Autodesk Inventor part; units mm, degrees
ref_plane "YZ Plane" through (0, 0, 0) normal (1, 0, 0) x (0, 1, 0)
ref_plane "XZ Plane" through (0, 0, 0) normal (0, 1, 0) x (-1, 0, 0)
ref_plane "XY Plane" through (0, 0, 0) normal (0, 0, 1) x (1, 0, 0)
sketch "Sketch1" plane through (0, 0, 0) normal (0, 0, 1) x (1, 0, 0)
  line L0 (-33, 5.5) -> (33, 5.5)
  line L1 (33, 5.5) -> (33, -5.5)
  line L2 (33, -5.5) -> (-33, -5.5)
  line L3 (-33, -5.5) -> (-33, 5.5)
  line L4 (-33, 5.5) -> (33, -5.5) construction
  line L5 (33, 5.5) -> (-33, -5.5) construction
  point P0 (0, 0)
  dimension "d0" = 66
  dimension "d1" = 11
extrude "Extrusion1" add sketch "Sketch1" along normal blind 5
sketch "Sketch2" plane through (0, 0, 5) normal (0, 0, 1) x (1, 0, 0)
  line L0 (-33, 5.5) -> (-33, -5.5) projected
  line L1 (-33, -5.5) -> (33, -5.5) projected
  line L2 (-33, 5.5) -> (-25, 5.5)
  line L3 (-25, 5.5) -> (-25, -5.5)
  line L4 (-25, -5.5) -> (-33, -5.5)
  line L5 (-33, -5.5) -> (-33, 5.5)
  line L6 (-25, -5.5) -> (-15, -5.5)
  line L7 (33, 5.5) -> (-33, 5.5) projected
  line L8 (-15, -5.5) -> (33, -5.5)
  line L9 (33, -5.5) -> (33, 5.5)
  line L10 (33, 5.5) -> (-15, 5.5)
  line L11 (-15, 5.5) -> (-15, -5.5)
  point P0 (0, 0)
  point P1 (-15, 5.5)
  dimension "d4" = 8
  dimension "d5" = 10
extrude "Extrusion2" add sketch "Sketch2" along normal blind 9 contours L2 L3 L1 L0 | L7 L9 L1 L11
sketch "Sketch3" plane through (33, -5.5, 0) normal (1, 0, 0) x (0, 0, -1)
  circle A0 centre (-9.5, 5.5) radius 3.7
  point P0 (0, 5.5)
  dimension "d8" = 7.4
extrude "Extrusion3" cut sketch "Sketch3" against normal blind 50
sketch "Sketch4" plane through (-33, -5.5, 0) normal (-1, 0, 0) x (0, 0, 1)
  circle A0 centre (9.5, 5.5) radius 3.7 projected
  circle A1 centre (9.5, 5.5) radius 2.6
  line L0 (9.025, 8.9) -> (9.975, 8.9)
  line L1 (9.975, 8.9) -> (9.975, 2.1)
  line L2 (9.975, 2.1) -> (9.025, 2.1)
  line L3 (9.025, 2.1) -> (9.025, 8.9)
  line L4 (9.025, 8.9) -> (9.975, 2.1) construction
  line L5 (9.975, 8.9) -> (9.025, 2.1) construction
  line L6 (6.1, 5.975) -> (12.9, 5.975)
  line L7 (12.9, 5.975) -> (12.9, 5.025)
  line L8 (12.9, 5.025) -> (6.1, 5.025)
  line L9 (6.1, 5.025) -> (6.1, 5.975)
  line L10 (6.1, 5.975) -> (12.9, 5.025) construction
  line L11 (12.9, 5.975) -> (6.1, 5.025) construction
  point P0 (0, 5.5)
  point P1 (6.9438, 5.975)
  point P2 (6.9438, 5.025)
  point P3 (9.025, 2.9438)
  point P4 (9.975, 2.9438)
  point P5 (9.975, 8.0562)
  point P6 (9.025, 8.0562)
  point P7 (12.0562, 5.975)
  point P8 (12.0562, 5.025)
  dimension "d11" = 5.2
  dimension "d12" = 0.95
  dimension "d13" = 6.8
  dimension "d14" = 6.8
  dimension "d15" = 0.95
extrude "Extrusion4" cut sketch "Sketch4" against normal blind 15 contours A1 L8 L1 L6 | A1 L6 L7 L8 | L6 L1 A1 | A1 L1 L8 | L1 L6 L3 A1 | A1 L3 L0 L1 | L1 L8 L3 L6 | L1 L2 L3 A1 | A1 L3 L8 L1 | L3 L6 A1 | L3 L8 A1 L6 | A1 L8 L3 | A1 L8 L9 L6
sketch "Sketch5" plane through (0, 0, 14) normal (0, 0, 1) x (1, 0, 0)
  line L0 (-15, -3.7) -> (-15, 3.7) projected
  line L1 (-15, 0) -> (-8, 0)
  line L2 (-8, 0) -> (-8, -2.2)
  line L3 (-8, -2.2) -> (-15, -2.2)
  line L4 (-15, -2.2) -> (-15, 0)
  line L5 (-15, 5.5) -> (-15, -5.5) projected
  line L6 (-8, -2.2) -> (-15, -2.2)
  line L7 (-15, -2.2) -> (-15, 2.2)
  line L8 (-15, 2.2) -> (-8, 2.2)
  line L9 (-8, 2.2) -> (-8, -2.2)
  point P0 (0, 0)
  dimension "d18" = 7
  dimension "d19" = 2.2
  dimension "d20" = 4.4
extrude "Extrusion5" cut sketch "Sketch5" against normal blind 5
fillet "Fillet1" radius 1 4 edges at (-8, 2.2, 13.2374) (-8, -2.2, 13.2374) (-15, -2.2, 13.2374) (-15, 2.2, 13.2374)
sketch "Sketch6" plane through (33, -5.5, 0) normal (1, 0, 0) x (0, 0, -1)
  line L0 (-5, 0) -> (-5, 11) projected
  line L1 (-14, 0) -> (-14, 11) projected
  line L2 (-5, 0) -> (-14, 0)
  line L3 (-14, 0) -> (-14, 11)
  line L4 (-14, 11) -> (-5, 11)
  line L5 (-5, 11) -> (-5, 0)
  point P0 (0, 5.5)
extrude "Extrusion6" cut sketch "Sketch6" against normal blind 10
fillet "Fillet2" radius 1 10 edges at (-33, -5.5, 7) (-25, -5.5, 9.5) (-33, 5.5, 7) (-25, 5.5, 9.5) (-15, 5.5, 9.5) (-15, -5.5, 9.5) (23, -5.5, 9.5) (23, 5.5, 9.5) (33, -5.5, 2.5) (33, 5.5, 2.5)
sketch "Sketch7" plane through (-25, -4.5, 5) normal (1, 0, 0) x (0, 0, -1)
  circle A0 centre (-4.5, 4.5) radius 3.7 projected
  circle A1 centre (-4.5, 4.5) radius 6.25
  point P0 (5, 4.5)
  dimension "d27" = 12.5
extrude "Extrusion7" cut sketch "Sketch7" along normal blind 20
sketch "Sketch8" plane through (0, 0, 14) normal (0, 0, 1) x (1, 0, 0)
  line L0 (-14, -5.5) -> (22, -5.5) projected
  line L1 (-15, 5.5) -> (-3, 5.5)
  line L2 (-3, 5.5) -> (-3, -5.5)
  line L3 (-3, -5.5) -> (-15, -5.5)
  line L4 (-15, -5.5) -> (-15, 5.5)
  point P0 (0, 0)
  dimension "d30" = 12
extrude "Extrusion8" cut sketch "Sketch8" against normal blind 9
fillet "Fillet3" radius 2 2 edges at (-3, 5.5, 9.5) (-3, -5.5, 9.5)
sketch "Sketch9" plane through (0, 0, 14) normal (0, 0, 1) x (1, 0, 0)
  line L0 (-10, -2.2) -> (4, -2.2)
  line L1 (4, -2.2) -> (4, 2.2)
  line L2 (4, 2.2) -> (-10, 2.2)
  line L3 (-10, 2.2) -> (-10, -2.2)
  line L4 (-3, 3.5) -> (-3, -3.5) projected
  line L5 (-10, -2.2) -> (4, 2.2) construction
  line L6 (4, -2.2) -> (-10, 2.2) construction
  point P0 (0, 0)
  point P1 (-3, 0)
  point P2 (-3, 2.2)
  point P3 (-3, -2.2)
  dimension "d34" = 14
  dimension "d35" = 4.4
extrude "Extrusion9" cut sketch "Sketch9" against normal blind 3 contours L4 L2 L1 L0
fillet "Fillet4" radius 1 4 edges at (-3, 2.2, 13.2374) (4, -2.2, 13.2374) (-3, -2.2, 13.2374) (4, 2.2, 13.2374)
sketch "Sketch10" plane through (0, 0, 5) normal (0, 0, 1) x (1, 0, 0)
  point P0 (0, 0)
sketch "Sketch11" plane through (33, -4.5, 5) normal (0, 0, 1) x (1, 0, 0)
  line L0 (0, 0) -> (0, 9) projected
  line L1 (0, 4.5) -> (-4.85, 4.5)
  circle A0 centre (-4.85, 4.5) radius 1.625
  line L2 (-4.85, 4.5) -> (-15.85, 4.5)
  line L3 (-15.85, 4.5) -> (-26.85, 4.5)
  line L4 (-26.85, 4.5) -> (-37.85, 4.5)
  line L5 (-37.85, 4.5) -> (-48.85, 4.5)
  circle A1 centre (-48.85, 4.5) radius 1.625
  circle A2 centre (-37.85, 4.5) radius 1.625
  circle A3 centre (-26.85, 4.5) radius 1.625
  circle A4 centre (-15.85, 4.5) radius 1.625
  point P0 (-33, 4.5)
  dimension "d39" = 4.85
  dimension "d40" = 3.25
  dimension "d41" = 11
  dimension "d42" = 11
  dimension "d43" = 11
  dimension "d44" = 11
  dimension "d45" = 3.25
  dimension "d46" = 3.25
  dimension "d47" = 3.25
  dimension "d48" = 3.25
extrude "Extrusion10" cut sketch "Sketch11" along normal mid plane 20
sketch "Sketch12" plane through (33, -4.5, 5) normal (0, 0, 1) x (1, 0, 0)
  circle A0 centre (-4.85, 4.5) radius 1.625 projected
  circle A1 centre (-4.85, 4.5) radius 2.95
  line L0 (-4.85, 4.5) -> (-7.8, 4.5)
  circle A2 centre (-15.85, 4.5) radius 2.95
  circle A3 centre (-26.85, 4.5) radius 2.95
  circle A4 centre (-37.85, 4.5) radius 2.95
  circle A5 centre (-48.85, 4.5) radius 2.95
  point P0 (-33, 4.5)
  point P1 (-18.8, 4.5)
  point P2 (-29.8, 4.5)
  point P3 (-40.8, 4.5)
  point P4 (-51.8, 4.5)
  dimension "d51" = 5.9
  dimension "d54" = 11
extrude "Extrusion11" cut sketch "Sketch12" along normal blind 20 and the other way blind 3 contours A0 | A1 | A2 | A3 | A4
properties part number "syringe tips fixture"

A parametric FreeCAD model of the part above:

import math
import FreeCAD as App
import Part
import Sketcher

V = App.Vector


def edges_at(feature, points):
    """Names of the edges that pass closest to the given points."""
    edges = feature.Shape.Edges
    near = lambda p: min(range(len(edges)), key=lambda i: edges[i].distToShape(Part.Vertex(*p))[0])
    return sorted({f"Edge{near(p) + 1}" for p in points})


def add_polygon(sketch, points):
    """Adds a closed chain of lines whose ends are joined by coincident constraints."""
    first, n = sketch.GeometryCount, len(points)
    for a, b in zip(points, points[1:] + points[:1]):
        sketch.addGeometry(Part.LineSegment(App.Vector(*a, 0), App.Vector(*b, 0)), False)
    for i in range(n):
        sketch.addConstraint(Sketcher.Constraint("Coincident", first + i, 2, first + (i + 1) % n, 1))

doc = App.newDocument("Part")
body = doc.addObject("PartDesign::Body", "Body")

# Sketch on XY plane
sketch1 = body.newObject("Sketcher::SketchObject", "Sketch")
sketch1.AttachmentSupport = (doc.getObject("XY_Plane"), [""])
sketch1.MapMode = "FlatFace"
add_polygon(sketch1, [(33, 6), (-33, 6), (-33, -6), (33, -6)])  # lines 0-3
sketch1.addConstraint(Sketcher.Constraint("Horizontal", 0))
sketch1.addConstraint(Sketcher.Constraint("Vertical", 1))
sketch1.addConstraint(Sketcher.Constraint("Horizontal", 2))
sketch1.addConstraint(Sketcher.Constraint("Vertical", 3))
sketch1.addConstraint(Sketcher.Constraint("Symmetric", 0, 2, 2, 2, -1, 1))
sketch1.addConstraint(Sketcher.Constraint("DistanceX", 0, 2, 0, 1, 66.0))
sketch1.addConstraint(Sketcher.Constraint("DistanceY", 1, 2, 1, 1, 11.0))
pad1 = body.newObject("PartDesign::Pad", "Pad")
pad1.Profile = sketch1
pad1.Length = 5

# Sketch on XY plane
sketch2 = body.newObject("Sketcher::SketchObject", "Sketch001")
sketch2.AttachmentSupport = (doc.getObject("XY_Plane"), [""])
sketch2.MapMode = "FlatFace"
sketch2.AttachmentOffset = App.Placement(V(0, 0, 5), App.Rotation())
add_polygon(sketch2, [(-25, 6), (-33, 6), (-33, -6), (-25, -6)])  # lines 0-3
add_polygon(sketch2, [(33, 6), (-15, 6), (-15, -6), (33, -6)])  # lines 4-7
sketch2.addConstraint(Sketcher.Constraint("Horizontal", 0))
sketch2.addConstraint(Sketcher.Constraint("Vertical", 1))
sketch2.addConstraint(Sketcher.Constraint("Horizontal", 2))
sketch2.addConstraint(Sketcher.Constraint("Vertical", 3))
sketch2.addConstraint(Sketcher.Constraint("Horizontal", 4))
sketch2.addConstraint(Sketcher.Constraint("Vertical", 5))
sketch2.addConstraint(Sketcher.Constraint("Horizontal", 6))
sketch2.addConstraint(Sketcher.Constraint("Vertical", 7))
sketch2.addConstraint(Sketcher.Constraint("Symmetric", 0, 2, 6, 2, -1, 1))
sketch2.addConstraint(Sketcher.Constraint("Horizontal", 3, 2, 4, 2))
sketch2.addConstraint(Sketcher.Constraint("Horizontal", 2, 2, 5, 2))
sketch2.addConstraint(Sketcher.Constraint("DistanceX", 0, 2, 0, 1, 8.0))
sketch2.addConstraint(Sketcher.Constraint("DistanceX", 3, 2, 4, 2, 10.0))
sketch2.addConstraint(Sketcher.Constraint("DistanceX", 4, 2, 4, 1, 48.0))
sketch2.addConstraint(Sketcher.Constraint("DistanceY", 1, 2, 1, 1, 11.0))
pad2 = body.newObject("PartDesign::Pad", "Pad001")
pad2.Profile = sketch2
pad2.Length = 9

# Sketch on YZ plane
sketch3 = body.newObject("Sketcher::SketchObject", "Sketch002")
sketch3.AttachmentSupport = (doc.getObject("YZ_Plane"), [""])
sketch3.MapMode = "FlatFace"
sketch3.AttachmentOffset = App.Placement(V(0, 0, 33), App.Rotation())
sketch3.addGeometry(Part.Circle(V(0, 9.5, 0), V(0, 0, 1), 3.7), False)
sketch3.addConstraint(Sketcher.Constraint("PointOnObject", 0, 3, -2))
sketch3.addConstraint(Sketcher.Constraint("Diameter", 0, 7.4))
sketch3.addConstraint(Sketcher.Constraint("DistanceY", -1, 1, 0, 3, 9.5))
pocket1 = body.newObject("PartDesign::Pocket", "Pocket")
pocket1.Profile = sketch3
pocket1.Length = 50

# Sketch on YZ plane
sketch4 = body.newObject("Sketcher::SketchObject", "Sketch003")
sketch4.AttachmentSupport = (doc.getObject("YZ_Plane"), [""])
sketch4.MapMode = "FlatFace"
sketch4.AttachmentOffset = App.Placement(V(0, 0, -33), App.Rotation())
sketch4.addGeometry(Part.LineSegment(V(-0.5, 12.1, 0), V(-0.5, 12.9, 0)), False)
sketch4.addGeometry(Part.LineSegment(V(-0.5, 12.9, 0), V(0.5, 12.9, 0)), False)
sketch4.addGeometry(Part.LineSegment(V(0.5, 12.9, 0), V(0.5, 12.1, 0)), False)
sketch4.addGeometry(Part.ArcOfCircle(Part.Circle(V(0, 9.5, 0), V(0, 0, 1), 2.6), math.radians(11), math.radians(79)), False)
sketch4.addGeometry(Part.LineSegment(V(2.6, 10, 0), V(3.4, 10, 0)), False)
sketch4.addGeometry(Part.LineSegment(V(3.4, 10, 0), V(3.4, 9, 0)), False)
sketch4.addGeometry(Part.LineSegment(V(3.4, 9, 0), V(2.6, 9, 0)), False)
sketch4.addGeometry(Part.ArcOfCircle(Part.Circle(V(0, 9.5, 0), V(0, 0, 1), 2.6), math.radians(-79), math.radians(-11)), False)
sketch4.addGeometry(Part.LineSegment(V(0.5, 6.9, 0), V(0.5, 6.1, 0)), False)
sketch4.addGeometry(Part.LineSegment(V(0.5, 6.1, 0), V(-0.5, 6.1, 0)), False)
sketch4.addGeometry(Part.LineSegment(V(-0.5, 6.1, 0), V(-0.5, 6.9, 0)), False)
sketch4.addGeometry(Part.ArcOfCircle(Part.Circle(V(0, 9.5, 0), V(0, 0, 1), 2.6), math.radians(-169), math.radians(-101)), False)
sketch4.addGeometry(Part.LineSegment(V(-2.6, 9, 0), V(-3.4, 9, 0)), False)
sketch4.addGeometry(Part.LineSegment(V(-3.4, 9, 0), V(-3.4, 10, 0)), False)
sketch4.addGeometry(Part.LineSegment(V(-3.4, 10, 0), V(-2.6, 10, 0)), False)
sketch4.addGeometry(Part.ArcOfCircle(Part.Circle(V(0, 9.5, 0), V(0, 0, 1), 2.6), math.radians(101), math.radians(169)), False)
sketch4.addConstraint(Sketcher.Constraint("Coincident", 0, 2, 1, 1))
sketch4.addConstraint(Sketcher.Constraint("Coincident", 1, 2, 2, 1))
sketch4.addConstraint(Sketcher.Constraint("Coincident", 2, 2, 3, 2))
sketch4.addConstraint(Sketcher.Constraint("Coincident", 3, 1, 4, 1))
sketch4.addConstraint(Sketcher.Constraint("Coincident", 4, 2, 5, 1))
sketch4.addConstraint(Sketcher.Constraint("Coincident", 5, 2, 6, 1))
sketch4.addConstraint(Sketcher.Constraint("Coincident", 6, 2, 7, 2))
sketch4.addConstraint(Sketcher.Constraint("Coincident", 7, 1, 8, 1))
sketch4.addConstraint(Sketcher.Constraint("Coincident", 8, 2, 9, 1))
sketch4.addConstraint(Sketcher.Constraint("Coincident", 9, 2, 10, 1))
sketch4.addConstraint(Sketcher.Constraint("Coincident", 10, 2, 11, 2))
sketch4.addConstraint(Sketcher.Constraint("Coincident", 11, 1, 12, 1))
sketch4.addConstraint(Sketcher.Constraint("Coincident", 12, 2, 13, 1))
sketch4.addConstraint(Sketcher.Constraint("Coincident", 13, 2, 14, 1))
sketch4.addConstraint(Sketcher.Constraint("Coincident", 14, 2, 15, 2))
sketch4.addConstraint(Sketcher.Constraint("Coincident", 15, 1, 0, 1))
sketch4.addConstraint(Sketcher.Constraint("Vertical", 0))
sketch4.addConstraint(Sketcher.Constraint("Horizontal", 1))
sketch4.addConstraint(Sketcher.Constraint("Vertical", 2))
sketch4.addConstraint(Sketcher.Constraint("Horizontal", 4))
sketch4.addConstraint(Sketcher.Constraint("Vertical", 5))
sketch4.addConstraint(Sketcher.Constraint("Horizontal", 6))
sketch4.addConstraint(Sketcher.Constraint("Vertical", 8))
sketch4.addConstraint(Sketcher.Constraint("Horizontal", 9))
sketch4.addConstraint(Sketcher.Constraint("Vertical", 10))
sketch4.addConstraint(Sketcher.Constraint("Horizontal", 12))
sketch4.addConstraint(Sketcher.Constraint("Vertical", 13))
sketch4.addConstraint(Sketcher.Constraint("Horizontal", 14))
sketch4.addConstraint(Sketcher.Constraint("Coincident", 7, 3, 3, 3))
sketch4.addConstraint(Sketcher.Constraint("Coincident", 11, 3, 3, 3))
sketch4.addConstraint(Sketcher.Constraint("Coincident", 15, 3, 3, 3))
sketch4.addConstraint(Sketcher.Constraint("Equal", 3, 7))
sketch4.addConstraint(Sketcher.Constraint("Equal", 7, 11))
sketch4.addConstraint(Sketcher.Constraint("Equal", 11, 15))
sketch4.addConstraint(Sketcher.Constraint("Symmetric", 7, 1, 10, 2, -2))
sketch4.addConstraint(Sketcher.Constraint("Symmetric", 5, 2, 12, 2, -2))
sketch4.addConstraint(Sketcher.Constraint("Horizontal", 4, 2, 13, 2))
sketch4.addConstraint(Sketcher.Constraint("Horizontal", 2, 2, 15, 1))
sketch4.addConstraint(Sketcher.Constraint("Vertical", 3, 1, 6, 2))
sketch4.addConstraint(Sketcher.Constraint("Vertical", 2, 2, 7, 1))
sketch4.addConstraint(Sketcher.Constraint("Equal", 14, 0))
sketch4.addConstraint(Sketcher.Constraint("Equal", 9, 5))
sketch4.addConstraint(Sketcher.Constraint("Equal", 2, 8))
sketch4.addConstraint(Sketcher.Constraint("Radius", 3, 2.6))
sketch4.addConstraint(Sketcher.Constraint("DistanceX", 1, 1, 1, 2, 0.95))
sketch4.addConstraint(Sketcher.Constraint("DistanceY", -1, 1, 3, 3, 9.5))
sketch4.addConstraint(Sketcher.Constraint("DistanceY", -1, 1, 0, 2, 12.9))
pocket2 = body.newObject("PartDesign::Pocket", "Pocket001")
pocket2.Profile = sketch4
pocket2.Length = 15
pocket2.Reversed = True

# Sketch on XY plane
sketch5 = body.newObject("Sketcher::SketchObject", "Sketch004")
sketch5.AttachmentSupport = (doc.getObject("XY_Plane"), [""])
sketch5.MapMode = "FlatFace"
sketch5.AttachmentOffset = App.Placement(V(0, 0, 14), App.Rotation())
add_polygon(sketch5, [(-15, -2.2), (-8, -2.2), (-8, 2.2), (-15, 2.2)])  # lines 0-3
sketch5.addConstraint(Sketcher.Constraint("Horizontal", 0))
sketch5.addConstraint(Sketcher.Constraint("Vertical", 1))
sketch5.addConstraint(Sketcher.Constraint("Horizontal", 2))
sketch5.addConstraint(Sketcher.Constraint("Vertical", 3))
sketch5.addConstraint(Sketcher.Constraint("DistanceX", 0, 1, 0, 2, 7.0))
sketch5.addConstraint(Sketcher.Constraint("DistanceY", 1, 1, 1, 2, 4.4))
sketch5.addConstraint(Sketcher.Constraint("DistanceY", 0, 2, -1, 1, 2.2))
sketch5.addConstraint(Sketcher.Constraint("DistanceX", 0, 2, -1, 1, 8.0))
pocket3 = body.newObject("PartDesign::Pocket", "Pocket002")
pocket3.Profile = sketch5
pocket3.Length = 5
doc.recompute()

fillet = body.newObject("PartDesign::Fillet", "Fillet")
fillet.Base = (pocket3, edges_at(pocket3, [
    (-8, 2.2, 13.237),
    (-8, -2.2, 13.237),
    (-15, -2.2, 13.237),
    (-15, 2.2, 13.237),
]))
fillet.Radius = 1

# Sketch on YZ plane
sketch6 = body.newObject("Sketcher::SketchObject", "Sketch005")
sketch6.AttachmentSupport = (doc.getObject("YZ_Plane"), [""])
sketch6.MapMode = "FlatFace"
sketch6.AttachmentOffset = App.Placement(V(0, 0, 33), App.Rotation())
add_polygon(sketch6, [(-6, 14), (-6, 5), (6, 5), (6, 14)])  # lines 0-3
sketch6.addConstraint(Sketcher.Constraint("Vertical", 0))
sketch6.addConstraint(Sketcher.Constraint("Horizontal", 1))
sketch6.addConstraint(Sketcher.Constraint("Vertical", 2))
sketch6.addConstraint(Sketcher.Constraint("Horizontal", 3))
sketch6.addConstraint(Sketcher.Constraint("DistanceX", 1, 1, 1, 2, 11.0))
sketch6.addConstraint(Sketcher.Constraint("DistanceY", 0, 2, 0, 1, 9.0))
sketch6.addConstraint(Sketcher.Constraint("DistanceY", -1, 1, 0, 2, 5.0))
sketch6.addConstraint(Sketcher.Constraint("DistanceX", 0, 2, -1, 1, 5.5))
pocket4 = body.newObject("PartDesign::Pocket", "Pocket003")
pocket4.Profile = sketch6
pocket4.Length = 10
doc.recompute()

fillet2 = body.newObject("PartDesign::Fillet", "Fillet001")
fillet2.Base = (pocket4, edges_at(pocket4, [
    (-33, -5.5, 7),
    (-25, -5.5, 9.5),
    (-33, 5.5, 7),
    (-25, 5.5, 9.5),
    (-15, 5.5, 9.5),
    (-15, -5.5, 9.5),
    (23, -5.5, 9.5),
    (23, 5.5, 9.5),
    (33, -5.5, 2.5),
    (33, 5.5, 2.5),
]))
fillet2.Radius = 1

# Sketch on YZ plane
sketch7 = body.newObject("Sketcher::SketchObject", "Sketch006")
sketch7.AttachmentSupport = (doc.getObject("YZ_Plane"), [""])
sketch7.MapMode = "FlatFace"
sketch7.AttachmentOffset = App.Placement(V(0, 0, -25), App.Rotation())
sketch7.addGeometry(Part.Circle(V(0, 9.5, 0), V(0, 0, 1), 6.2), False)
sketch7.addGeometry(Part.Circle(V(0, 9.5, 0), V(0, 0, 1), 3.7), False)
sketch7.addConstraint(Sketcher.Constraint("Coincident", 1, 3, 0, 3))
sketch7.addConstraint(Sketcher.Constraint("PointOnObject", 0, 3, -2))
sketch7.addConstraint(Sketcher.Constraint("Diameter", 0, 12.5))
sketch7.addConstraint(Sketcher.Constraint("Diameter", 1, 7.4))
sketch7.addConstraint(Sketcher.Constraint("DistanceY", -1, 1, 0, 3, 9.5))
pocket5 = body.newObject("PartDesign::Pocket", "Pocket004")
pocket5.Profile = sketch7
pocket5.Length = 20
pocket5.Reversed = True

# Sketch on XY plane
sketch8 = body.newObject("Sketcher::SketchObject", "Sketch007")
sketch8.AttachmentSupport = (doc.getObject("XY_Plane"), [""])
sketch8.MapMode = "FlatFace"
sketch8.AttachmentOffset = App.Placement(V(0, 0, 14), App.Rotation())
add_polygon(sketch8, [(-15, -6), (-3, -6), (-3, 6), (-15, 6)])  # lines 0-3
sketch8.addConstraint(Sketcher.Constraint("Horizontal", 0))
sketch8.addConstraint(Sketcher.Constraint("Vertical", 1))
sketch8.addConstraint(Sketcher.Constraint("Horizontal", 2))
sketch8.addConstraint(Sketcher.Constraint("Vertical", 3))
sketch8.addConstraint(Sketcher.Constraint("DistanceX", 0, 1, 0, 2, 12.0))
sketch8.addConstraint(Sketcher.Constraint("DistanceY", 1, 1, 1, 2, 11.0))
sketch8.addConstraint(Sketcher.Constraint("DistanceX", 0, 2, -1, 1, 3.0))
sketch8.addConstraint(Sketcher.Constraint("DistanceY", 0, 2, -1, 1, 5.5))
pocket6 = body.newObject("PartDesign::Pocket", "Pocket005")
pocket6.Profile = sketch8
pocket6.Length = 9
doc.recompute()

fillet3 = body.newObject("PartDesign::Fillet", "Fillet002")
fillet3.Base = (pocket6, edges_at(pocket6, [(-3, 5.5, 9.5), (-3, -5.5, 9.5)]))
fillet3.Radius = 2

# Sketch on XY plane
sketch9 = body.newObject("Sketcher::SketchObject", "Sketch008")
sketch9.AttachmentSupport = (doc.getObject("XY_Plane"), [""])
sketch9.MapMode = "FlatFace"
sketch9.AttachmentOffset = App.Placement(V(0, 0, 14), App.Rotation())
add_polygon(sketch9, [(-3, 2.2), (-3, -2.2), (4, -2.2), (4, 2.2)])  # lines 0-3
sketch9.addConstraint(Sketcher.Constraint("Vertical", 0))
sketch9.addConstraint(Sketcher.Constraint("Horizontal", 1))
sketch9.addConstraint(Sketcher.Constraint("Vertical", 2))
sketch9.addConstraint(Sketcher.Constraint("Horizontal", 3))
sketch9.addConstraint(Sketcher.Constraint("DistanceY", 0, 2, 0, 1, 4.4))
sketch9.addConstraint(Sketcher.Constraint("DistanceX", 1, 1, 1, 2, 7.0))
sketch9.addConstraint(Sketcher.Constraint("DistanceX", 0, 2, -1, 1, 3.0))
sketch9.addConstraint(Sketcher.Constraint("DistanceY", 0, 2, -1, 1, 2.2))
pocket7 = body.newObject("PartDesign::Pocket", "Pocket006")
pocket7.Profile = sketch9
pocket7.Length = 3
doc.recompute()

fillet4 = body.newObject("PartDesign::Fillet", "Fillet003")
fillet4.Base = (pocket7, edges_at(pocket7, [
    (-3, 2.2, 13.237),
    (4, -2.2, 13.237),
    (-3, -2.2, 13.237),
    (4, 2.2, 13.237),
]))
fillet4.Radius = 1

# Sketch on XY plane
sketch10 = body.newObject("Sketcher::SketchObject", "Sketch009")
sketch10.AttachmentSupport = (doc.getObject("XY_Plane"), [""])
sketch10.MapMode = "FlatFace"
sketch10.AttachmentOffset = App.Placement(V(0, 0, 5), App.Rotation())
sketch10.addGeometry(Part.Circle(V(28.1, 0, 0), V(0, 0, 1), 1.6), False)
sketch10.addGeometry(Part.Circle(V(-15.8, 0, 0), V(0, 0, 1), 1.6), False)
sketch10.addGeometry(Part.Circle(V(-4.8, 0, 0), V(0, 0, 1), 1.6), False)
sketch10.addGeometry(Part.Circle(V(6.2, 0, 0), V(0, 0, 1), 1.6), False)
sketch10.addGeometry(Part.Circle(V(17.1, 0, 0), V(0, 0, 1), 1.6), False)
sketch10.addConstraint(Sketcher.Constraint("Equal", 0, 1))
sketch10.addConstraint(Sketcher.Constraint("Equal", 1, 2))
sketch10.addConstraint(Sketcher.Constraint("Equal", 2, 3))
sketch10.addConstraint(Sketcher.Constraint("Equal", 3, 4))
sketch10.addConstraint(Sketcher.Constraint("PointOnObject", 0, 3, -1))
sketch10.addConstraint(Sketcher.Constraint("PointOnObject", 1, 3, -1))
sketch10.addConstraint(Sketcher.Constraint("PointOnObject", 2, 3, -1))
sketch10.addConstraint(Sketcher.Constraint("PointOnObject", 3, 3, -1))
sketch10.addConstraint(Sketcher.Constraint("PointOnObject", 4, 3, -1))
sketch10.addConstraint(Sketcher.Constraint("Diameter", 0, 3.25))
sketch10.addConstraint(Sketcher.Constraint("DistanceX", 1, 3, 2, 3, 11.0))
sketch10.addConstraint(Sketcher.Constraint("DistanceX", 2, 3, 3, 3, 11.0))
sketch10.addConstraint(Sketcher.Constraint("DistanceX", 3, 3, 4, 3, 11.0))
sketch10.addConstraint(Sketcher.Constraint("DistanceX", 4, 3, 0, 3, 11.0))
sketch10.addConstraint(Sketcher.Constraint("DistanceX", 2, 3, -1, 1, 4.85))
pocket8 = body.newObject("PartDesign::Pocket", "Pocket007")
pocket8.Profile = sketch10
pocket8.Length = 20
pocket8.Midplane = True

# Sketch on XY plane
sketch11 = body.newObject("Sketcher::SketchObject", "Sketch010")
sketch11.AttachmentSupport = (doc.getObject("XY_Plane"), [""])
sketch11.MapMode = "FlatFace"
sketch11.AttachmentOffset = App.Placement(V(0, 0, 5), App.Rotation())
sketch11.addGeometry(Part.Circle(V(28.1, 0, 0), V(0, 0, 1), 3), False)
sketch11.addGeometry(Part.Circle(V(17.1, 0, 0), V(0, 0, 1), 3), False)
sketch11.addGeometry(Part.Circle(V(6.2, 0, 0), V(0, 0, 1), 3), False)
sketch11.addGeometry(Part.Circle(V(-4.8, 0, 0), V(0, 0, 1), 3), False)
sketch11.addConstraint(Sketcher.Constraint("Equal", 0, 1))
sketch11.addConstraint(Sketcher.Constraint("Equal", 1, 2))
sketch11.addConstraint(Sketcher.Constraint("Equal", 2, 3))
sketch11.addConstraint(Sketcher.Constraint("PointOnObject", 0, 3, -1))
sketch11.addConstraint(Sketcher.Constraint("PointOnObject", 1, 3, -1))
sketch11.addConstraint(Sketcher.Constraint("PointOnObject", 2, 3, -1))
sketch11.addConstraint(Sketcher.Constraint("PointOnObject", 3, 3, -1))
sketch11.addConstraint(Sketcher.Constraint("Diameter", 0, 5.9))
sketch11.addConstraint(Sketcher.Constraint("DistanceX", 1, 3, 0, 3, 11.0))
sketch11.addConstraint(Sketcher.Constraint("DistanceX", 2, 3, 1, 3, 11.0))
sketch11.addConstraint(Sketcher.Constraint("DistanceX", 3, 3, 2, 3, 11.0))
sketch11.addConstraint(Sketcher.Constraint("DistanceX", -1, 1, 0, 3, 28.15))
pocket9 = body.newObject("PartDesign::Pocket", "Pocket008")
pocket9.Profile = sketch11
pocket9.Type = "TwoLengths"
pocket9.Length = 20
pocket9.Length2 = 3
pocket9.Reversed = True

doc.recompute()
